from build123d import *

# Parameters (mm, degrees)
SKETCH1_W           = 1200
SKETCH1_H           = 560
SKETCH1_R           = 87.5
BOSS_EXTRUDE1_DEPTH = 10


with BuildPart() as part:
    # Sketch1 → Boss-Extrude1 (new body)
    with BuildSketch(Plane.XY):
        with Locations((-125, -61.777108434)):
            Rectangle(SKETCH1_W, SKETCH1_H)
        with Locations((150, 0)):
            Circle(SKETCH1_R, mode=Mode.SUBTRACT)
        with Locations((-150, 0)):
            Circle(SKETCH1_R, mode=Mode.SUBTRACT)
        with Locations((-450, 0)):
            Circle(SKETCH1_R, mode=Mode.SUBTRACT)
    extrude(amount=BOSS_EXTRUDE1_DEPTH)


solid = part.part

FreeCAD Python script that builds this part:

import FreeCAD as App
import Part
import Sketcher
from FreeCAD import Vector
Q = App.Units.Quantity


def add_polygon(sketch, points):
    """Adds a closed chain of lines whose ends are joined by coincident constraints."""
    first, n = sketch.GeometryCount, len(points)
    for a, b in zip(points, points[1:] + points[:1]):
        sketch.addGeometry(Part.LineSegment(App.Vector(*a, 0), App.Vector(*b, 0)), False)
    for i in range(n):
        sketch.addConstraint(Sketcher.Constraint("Coincident", first + i, 2, first + (i + 1) % n, 1))

doc = App.newDocument("Part")
body = doc.addObject("PartDesign::Body", "Body")

# Sketch on XY plane
sketch1 = body.newObject("Sketcher::SketchObject", "Sketch")
sketch1.AttachmentSupport = (doc.getObject("XY_Plane"), [""])
sketch1.MapMode = "FlatFace"
add_polygon(sketch1, [(-725, 218), (-725, -342), (475, -342), (475, 218)])  # lines 0-3
sketch1.addGeometry(Part.Circle(Vector(-450, 0, 0), Vector(0, 0, 1), 88), False)  # 4
sketch1.addGeometry(Part.Circle(Vector(-150, 0, 0), Vector(0, 0, 1), 88), False)  # 5
sketch1.addGeometry(Part.Circle(Vector(150, 0, 0), Vector(0, 0, 1), 88), False)  # 6
sketch1.addConstraint([
    Sketcher.Constraint("Vertical", 0),
    Sketcher.Constraint("Horizontal", 1),
    Sketcher.Constraint("Vertical", 2),
    Sketcher.Constraint("Horizontal", 3),
    Sketcher.Constraint("Equal", 4, 5),
    Sketcher.Constraint("Equal", 5, 6),
    Sketcher.Constraint("Symmetric", 5, 3, 6, 3, -1, 1),
    Sketcher.Constraint("PointOnObject", 4, 3, -1),
    Sketcher.Constraint("PointOnObject", 5, 3, -1),
    Sketcher.Constraint("Diameter", 4, Q("175 mm")),
    Sketcher.Constraint("DistanceX", 1, 1, 1, 2, Q("1200 mm")),
    Sketcher.Constraint("DistanceY", 0, 2, 0, 1, Q("560 mm")),
    Sketcher.Constraint("DistanceX", 4, 3, -1, 1, Q("450 mm")),
    Sketcher.Constraint("DistanceX", 5, 3, -1, 1, Q("150 mm")),
    Sketcher.Constraint("DistanceX", 0, 2, -1, 1, Q("725 mm")),
    Sketcher.Constraint("DistanceY", 0, 2, -1, 1, Q("341.777108 mm")),
])
pad1 = body.newObject("PartDesign::Pad", "Pad")
pad1.Profile = sketch1
pad1.Length = 10

doc.recompute()
